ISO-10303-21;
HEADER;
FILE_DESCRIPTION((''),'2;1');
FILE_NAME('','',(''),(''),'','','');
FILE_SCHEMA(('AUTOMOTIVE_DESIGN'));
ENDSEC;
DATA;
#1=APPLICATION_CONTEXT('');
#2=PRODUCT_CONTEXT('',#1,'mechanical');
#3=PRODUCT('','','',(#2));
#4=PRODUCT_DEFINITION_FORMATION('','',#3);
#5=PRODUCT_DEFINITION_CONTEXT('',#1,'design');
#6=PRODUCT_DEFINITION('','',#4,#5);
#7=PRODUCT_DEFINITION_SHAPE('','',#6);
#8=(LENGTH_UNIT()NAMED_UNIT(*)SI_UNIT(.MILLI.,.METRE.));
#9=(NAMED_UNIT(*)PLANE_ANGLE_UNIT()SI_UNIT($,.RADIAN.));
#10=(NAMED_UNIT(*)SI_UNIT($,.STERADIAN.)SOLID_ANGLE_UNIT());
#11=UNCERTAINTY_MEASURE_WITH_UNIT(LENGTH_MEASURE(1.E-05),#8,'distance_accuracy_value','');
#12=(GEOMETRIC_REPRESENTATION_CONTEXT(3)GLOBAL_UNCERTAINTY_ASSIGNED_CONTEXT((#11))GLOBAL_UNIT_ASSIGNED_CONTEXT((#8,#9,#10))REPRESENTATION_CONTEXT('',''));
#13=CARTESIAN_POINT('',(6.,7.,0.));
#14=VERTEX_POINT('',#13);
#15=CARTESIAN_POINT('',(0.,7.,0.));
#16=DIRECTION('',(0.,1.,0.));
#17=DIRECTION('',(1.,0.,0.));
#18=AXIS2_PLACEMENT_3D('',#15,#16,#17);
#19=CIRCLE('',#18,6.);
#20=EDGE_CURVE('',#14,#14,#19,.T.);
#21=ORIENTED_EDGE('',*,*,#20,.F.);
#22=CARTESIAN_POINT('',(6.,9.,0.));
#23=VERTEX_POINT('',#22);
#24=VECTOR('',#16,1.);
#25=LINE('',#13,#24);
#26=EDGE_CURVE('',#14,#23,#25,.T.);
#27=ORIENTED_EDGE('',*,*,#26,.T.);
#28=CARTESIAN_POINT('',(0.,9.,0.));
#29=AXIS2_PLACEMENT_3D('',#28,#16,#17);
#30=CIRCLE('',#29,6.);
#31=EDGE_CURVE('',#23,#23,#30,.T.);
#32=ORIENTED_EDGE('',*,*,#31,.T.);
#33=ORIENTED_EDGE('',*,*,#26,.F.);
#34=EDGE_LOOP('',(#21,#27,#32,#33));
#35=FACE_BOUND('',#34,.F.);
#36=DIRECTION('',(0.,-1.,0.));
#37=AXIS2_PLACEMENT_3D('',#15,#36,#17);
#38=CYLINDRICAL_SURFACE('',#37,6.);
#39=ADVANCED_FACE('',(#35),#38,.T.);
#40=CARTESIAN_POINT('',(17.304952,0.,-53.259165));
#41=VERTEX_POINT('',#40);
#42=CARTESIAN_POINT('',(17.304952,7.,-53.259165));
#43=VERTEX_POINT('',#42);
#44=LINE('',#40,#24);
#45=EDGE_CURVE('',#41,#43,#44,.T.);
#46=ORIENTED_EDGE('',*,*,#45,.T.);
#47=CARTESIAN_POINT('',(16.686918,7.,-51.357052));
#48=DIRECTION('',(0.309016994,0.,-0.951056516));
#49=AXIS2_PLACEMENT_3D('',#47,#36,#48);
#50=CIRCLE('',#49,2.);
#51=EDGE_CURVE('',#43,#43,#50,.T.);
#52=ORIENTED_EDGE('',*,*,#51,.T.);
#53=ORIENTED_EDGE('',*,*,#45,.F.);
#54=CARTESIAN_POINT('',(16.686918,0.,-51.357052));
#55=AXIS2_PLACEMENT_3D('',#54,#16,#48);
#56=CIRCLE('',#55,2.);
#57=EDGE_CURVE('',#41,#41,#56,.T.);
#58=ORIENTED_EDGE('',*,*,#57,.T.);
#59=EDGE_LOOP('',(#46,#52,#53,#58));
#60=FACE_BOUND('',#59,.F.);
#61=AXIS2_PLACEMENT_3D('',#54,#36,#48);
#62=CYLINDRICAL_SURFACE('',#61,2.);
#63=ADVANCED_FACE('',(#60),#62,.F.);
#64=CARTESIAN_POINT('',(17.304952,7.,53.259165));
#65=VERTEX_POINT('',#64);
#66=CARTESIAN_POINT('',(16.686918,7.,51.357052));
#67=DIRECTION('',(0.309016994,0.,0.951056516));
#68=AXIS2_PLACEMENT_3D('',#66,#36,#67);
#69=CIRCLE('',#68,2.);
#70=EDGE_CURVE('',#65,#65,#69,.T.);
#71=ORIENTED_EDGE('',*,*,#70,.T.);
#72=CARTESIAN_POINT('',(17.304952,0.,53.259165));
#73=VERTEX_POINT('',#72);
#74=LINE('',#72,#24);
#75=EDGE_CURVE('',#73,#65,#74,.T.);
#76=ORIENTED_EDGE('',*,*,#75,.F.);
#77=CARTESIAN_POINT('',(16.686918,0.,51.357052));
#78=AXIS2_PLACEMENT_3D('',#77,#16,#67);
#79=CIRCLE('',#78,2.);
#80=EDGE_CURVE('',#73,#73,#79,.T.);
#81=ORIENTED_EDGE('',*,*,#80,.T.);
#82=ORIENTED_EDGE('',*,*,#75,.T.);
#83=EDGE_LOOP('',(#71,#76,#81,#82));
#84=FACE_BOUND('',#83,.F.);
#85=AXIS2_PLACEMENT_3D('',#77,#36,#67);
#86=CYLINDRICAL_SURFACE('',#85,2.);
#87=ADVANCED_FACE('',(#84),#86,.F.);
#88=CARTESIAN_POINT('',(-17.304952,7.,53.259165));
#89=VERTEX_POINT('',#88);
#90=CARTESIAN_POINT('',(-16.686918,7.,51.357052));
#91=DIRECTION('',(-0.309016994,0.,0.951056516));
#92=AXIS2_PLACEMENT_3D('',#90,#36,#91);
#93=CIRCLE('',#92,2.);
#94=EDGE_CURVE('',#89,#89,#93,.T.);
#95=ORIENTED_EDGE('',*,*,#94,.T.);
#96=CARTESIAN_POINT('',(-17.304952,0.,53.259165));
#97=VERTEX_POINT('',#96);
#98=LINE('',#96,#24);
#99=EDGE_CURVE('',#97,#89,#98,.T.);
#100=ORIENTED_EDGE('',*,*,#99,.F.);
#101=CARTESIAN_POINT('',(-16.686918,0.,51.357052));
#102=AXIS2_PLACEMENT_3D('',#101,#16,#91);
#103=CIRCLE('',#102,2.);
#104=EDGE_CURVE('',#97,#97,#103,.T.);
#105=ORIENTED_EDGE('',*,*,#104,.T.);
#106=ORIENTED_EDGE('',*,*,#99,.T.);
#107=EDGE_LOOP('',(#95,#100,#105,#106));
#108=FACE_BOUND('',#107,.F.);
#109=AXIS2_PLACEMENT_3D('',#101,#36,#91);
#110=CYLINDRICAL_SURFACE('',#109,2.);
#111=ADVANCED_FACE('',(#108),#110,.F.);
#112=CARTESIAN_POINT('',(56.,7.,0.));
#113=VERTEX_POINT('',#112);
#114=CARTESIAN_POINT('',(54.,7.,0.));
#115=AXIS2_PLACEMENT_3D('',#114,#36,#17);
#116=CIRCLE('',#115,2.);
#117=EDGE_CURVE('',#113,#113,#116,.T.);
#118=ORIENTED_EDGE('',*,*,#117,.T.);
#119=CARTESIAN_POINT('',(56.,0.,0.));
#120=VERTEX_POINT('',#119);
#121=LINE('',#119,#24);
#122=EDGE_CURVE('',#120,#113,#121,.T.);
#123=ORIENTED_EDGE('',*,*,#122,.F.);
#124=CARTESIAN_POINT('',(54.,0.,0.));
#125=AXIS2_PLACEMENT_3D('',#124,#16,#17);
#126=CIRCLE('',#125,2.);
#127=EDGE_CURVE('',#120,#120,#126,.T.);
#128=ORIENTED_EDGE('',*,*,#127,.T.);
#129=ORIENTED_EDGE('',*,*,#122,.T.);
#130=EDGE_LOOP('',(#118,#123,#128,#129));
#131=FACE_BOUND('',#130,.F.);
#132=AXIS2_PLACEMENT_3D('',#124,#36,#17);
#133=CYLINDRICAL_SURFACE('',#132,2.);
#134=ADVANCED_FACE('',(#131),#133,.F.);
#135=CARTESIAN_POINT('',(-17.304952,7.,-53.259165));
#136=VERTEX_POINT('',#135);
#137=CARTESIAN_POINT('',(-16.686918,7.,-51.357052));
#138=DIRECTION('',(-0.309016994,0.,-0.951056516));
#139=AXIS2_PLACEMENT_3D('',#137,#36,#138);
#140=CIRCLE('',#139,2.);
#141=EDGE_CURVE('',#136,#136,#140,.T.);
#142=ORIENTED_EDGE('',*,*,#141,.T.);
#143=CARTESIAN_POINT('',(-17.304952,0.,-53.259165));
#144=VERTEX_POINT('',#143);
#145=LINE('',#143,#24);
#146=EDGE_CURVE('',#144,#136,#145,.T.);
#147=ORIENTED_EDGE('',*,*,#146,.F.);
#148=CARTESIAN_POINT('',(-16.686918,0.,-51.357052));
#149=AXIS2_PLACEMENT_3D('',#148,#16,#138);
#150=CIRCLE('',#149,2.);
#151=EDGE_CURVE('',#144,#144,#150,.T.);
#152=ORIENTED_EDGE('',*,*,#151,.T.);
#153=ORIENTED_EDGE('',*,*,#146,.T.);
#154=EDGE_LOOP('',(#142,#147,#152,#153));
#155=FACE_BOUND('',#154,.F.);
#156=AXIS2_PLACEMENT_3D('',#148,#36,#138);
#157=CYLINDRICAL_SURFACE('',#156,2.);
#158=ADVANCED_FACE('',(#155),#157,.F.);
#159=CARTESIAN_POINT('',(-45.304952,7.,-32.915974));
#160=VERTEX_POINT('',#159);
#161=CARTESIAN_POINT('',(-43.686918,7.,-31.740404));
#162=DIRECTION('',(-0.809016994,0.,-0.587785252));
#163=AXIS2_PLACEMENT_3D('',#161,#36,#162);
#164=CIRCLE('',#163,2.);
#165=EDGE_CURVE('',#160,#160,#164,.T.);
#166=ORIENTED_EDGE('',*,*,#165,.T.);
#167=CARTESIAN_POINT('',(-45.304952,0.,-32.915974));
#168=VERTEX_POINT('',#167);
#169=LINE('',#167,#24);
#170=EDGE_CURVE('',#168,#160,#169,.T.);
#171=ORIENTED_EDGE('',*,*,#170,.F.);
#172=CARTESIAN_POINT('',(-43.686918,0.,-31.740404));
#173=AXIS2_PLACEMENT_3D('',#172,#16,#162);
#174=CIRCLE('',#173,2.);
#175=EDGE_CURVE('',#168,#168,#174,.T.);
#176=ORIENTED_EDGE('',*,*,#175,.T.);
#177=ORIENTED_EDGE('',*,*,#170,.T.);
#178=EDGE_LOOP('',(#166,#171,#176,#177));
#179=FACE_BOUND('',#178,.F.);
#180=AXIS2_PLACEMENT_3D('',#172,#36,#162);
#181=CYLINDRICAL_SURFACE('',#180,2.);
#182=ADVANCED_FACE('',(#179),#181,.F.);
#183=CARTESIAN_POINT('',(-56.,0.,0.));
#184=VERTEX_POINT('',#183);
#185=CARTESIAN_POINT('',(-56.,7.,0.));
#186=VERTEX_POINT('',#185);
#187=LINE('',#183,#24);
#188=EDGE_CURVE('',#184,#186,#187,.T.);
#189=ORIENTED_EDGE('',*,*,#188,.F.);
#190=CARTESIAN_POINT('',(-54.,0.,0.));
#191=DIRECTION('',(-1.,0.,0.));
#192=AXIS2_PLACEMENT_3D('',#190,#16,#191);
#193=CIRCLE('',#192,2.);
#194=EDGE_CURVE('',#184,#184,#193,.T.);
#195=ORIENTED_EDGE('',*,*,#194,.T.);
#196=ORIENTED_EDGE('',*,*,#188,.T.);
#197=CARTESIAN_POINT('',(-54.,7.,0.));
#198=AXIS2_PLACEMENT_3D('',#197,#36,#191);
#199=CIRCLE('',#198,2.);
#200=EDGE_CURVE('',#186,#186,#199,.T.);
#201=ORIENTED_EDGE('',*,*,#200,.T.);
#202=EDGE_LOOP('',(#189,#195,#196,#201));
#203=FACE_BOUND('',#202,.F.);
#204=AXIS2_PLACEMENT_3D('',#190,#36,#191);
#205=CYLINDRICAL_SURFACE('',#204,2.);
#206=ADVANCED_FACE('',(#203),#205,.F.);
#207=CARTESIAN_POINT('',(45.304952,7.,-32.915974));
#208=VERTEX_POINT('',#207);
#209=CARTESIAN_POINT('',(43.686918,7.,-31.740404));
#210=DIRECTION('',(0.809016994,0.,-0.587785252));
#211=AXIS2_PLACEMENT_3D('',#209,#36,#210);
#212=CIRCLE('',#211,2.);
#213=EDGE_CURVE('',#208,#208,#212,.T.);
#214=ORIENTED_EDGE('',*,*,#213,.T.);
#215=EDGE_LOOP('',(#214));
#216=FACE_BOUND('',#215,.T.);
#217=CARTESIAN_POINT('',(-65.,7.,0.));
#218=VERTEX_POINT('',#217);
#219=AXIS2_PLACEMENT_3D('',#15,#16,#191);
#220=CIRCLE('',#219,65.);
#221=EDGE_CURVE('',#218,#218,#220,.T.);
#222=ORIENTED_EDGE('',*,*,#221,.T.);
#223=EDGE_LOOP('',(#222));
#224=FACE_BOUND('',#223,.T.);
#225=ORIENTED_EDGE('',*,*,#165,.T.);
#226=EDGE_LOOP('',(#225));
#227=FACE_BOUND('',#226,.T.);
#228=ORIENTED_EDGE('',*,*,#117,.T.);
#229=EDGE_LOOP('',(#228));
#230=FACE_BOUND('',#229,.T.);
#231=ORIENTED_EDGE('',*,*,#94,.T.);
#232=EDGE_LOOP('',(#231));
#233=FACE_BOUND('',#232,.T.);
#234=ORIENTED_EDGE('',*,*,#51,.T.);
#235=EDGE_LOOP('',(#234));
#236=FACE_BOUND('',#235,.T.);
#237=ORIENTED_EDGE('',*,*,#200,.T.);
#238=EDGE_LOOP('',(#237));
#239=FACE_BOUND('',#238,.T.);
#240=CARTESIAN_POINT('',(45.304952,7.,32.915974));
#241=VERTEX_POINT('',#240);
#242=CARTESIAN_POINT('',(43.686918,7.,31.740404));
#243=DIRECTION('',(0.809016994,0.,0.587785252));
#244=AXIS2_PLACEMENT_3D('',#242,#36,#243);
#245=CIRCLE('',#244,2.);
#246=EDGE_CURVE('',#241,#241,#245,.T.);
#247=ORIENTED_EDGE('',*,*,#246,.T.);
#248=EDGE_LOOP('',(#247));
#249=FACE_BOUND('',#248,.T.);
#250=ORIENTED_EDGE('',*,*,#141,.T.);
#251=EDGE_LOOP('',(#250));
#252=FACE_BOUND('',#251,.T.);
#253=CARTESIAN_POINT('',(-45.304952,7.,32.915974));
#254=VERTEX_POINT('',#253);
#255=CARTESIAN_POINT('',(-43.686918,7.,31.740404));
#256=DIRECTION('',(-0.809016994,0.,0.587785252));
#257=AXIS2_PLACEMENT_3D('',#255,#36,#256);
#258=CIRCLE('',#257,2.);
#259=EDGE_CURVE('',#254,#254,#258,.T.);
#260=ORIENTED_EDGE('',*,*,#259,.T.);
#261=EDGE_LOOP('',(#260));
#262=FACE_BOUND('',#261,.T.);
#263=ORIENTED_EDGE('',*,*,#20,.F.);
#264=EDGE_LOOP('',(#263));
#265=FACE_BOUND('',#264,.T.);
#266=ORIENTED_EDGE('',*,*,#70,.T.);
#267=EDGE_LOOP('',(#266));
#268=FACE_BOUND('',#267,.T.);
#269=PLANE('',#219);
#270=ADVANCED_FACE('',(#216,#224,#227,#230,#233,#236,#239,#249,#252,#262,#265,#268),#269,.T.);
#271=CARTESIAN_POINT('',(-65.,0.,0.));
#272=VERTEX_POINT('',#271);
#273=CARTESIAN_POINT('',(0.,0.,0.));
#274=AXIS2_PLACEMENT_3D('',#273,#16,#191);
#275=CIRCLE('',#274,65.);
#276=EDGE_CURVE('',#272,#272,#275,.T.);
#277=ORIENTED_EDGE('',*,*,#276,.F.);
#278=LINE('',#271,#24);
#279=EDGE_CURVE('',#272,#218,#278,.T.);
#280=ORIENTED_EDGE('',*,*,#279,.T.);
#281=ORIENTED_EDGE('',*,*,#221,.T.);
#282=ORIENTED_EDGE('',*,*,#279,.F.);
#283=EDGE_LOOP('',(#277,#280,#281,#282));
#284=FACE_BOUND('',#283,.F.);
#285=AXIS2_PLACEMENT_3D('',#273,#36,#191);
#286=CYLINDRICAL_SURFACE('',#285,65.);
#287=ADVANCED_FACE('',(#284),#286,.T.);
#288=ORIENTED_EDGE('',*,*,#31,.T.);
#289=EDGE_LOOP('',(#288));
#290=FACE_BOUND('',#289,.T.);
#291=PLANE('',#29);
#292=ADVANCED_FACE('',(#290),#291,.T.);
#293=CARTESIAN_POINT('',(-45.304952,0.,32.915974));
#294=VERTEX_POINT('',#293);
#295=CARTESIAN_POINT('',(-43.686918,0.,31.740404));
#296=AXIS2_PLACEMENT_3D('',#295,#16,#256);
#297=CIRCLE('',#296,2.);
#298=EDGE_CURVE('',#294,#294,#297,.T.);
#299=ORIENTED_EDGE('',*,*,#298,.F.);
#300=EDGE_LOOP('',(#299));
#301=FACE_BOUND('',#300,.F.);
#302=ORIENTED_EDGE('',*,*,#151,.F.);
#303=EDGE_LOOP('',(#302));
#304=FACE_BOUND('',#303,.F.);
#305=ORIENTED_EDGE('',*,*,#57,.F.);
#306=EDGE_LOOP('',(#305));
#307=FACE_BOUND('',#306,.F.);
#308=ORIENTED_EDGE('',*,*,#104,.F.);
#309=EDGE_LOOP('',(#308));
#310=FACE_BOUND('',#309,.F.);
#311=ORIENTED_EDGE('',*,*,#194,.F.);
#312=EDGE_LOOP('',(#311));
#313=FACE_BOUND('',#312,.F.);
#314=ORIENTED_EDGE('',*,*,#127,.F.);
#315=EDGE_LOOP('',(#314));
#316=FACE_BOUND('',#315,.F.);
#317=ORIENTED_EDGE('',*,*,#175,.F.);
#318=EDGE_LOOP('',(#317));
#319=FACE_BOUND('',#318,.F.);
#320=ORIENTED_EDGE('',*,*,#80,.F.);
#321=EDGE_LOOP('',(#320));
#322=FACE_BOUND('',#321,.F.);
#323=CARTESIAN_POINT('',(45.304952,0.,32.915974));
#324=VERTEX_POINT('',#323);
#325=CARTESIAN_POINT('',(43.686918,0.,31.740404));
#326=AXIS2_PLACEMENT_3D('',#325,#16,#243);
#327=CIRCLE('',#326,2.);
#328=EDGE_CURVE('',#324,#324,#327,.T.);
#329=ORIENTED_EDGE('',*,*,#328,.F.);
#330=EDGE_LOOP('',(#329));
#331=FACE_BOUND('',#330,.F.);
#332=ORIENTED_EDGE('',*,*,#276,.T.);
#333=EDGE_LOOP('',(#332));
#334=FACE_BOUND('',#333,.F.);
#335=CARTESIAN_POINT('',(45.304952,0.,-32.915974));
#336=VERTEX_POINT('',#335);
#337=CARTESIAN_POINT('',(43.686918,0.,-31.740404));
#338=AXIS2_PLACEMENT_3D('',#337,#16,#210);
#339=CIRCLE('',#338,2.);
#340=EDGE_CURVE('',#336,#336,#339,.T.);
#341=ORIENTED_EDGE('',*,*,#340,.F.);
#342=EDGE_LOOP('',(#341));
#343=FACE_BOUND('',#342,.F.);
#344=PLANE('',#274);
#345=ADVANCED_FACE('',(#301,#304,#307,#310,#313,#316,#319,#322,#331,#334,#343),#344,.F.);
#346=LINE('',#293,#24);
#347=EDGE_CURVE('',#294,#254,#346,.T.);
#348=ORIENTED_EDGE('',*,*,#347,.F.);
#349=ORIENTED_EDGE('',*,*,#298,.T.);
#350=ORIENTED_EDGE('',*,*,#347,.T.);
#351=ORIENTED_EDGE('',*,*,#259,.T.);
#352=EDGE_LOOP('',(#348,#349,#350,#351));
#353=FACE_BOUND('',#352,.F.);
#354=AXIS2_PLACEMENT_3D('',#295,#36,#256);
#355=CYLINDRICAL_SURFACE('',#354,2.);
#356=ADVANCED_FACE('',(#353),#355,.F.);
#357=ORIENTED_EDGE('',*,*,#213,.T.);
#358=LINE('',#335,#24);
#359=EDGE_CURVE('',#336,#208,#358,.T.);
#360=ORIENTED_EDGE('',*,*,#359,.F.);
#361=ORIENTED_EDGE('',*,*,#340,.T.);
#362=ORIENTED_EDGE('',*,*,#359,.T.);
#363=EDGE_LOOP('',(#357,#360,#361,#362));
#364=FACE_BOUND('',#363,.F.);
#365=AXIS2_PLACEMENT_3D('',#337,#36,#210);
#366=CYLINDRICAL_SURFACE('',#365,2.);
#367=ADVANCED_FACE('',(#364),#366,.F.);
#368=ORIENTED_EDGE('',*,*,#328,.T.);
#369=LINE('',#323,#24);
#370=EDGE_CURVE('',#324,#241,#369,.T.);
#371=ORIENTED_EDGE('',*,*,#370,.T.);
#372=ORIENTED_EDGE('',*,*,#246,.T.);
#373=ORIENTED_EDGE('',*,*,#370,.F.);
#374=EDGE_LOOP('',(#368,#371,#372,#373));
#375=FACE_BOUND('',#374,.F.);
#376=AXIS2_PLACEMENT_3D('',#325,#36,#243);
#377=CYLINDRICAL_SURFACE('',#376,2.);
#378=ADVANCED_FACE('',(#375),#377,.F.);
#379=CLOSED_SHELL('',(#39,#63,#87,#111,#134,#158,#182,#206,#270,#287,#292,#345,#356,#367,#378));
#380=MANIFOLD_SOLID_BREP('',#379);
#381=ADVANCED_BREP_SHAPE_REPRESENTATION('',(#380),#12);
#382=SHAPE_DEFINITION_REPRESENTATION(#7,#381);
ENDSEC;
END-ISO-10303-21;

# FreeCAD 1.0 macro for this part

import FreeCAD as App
import Part
import Sketcher
from FreeCAD import Vector

doc = App.newDocument("Part")
body = doc.addObject("PartDesign::Body", "Body")

# Sketch on XZ plane
sketch1 = body.newObject("Sketcher::SketchObject", "Sketch")
sketch1.AttachmentSupport = (doc.getObject("XZ_Plane"), [""])
sketch1.MapMode = "FlatFace"
sketch1.addGeometry(Part.Circle(Vector(0, 0, 0), Vector(0, 0, 1), 65), False)
sketch1.addConstraint([
    Sketcher.Constraint("Coincident", 0, 3, -1, 1),
    Sketcher.Constraint("Diameter", 0, 130.0),
])
pad1 = body.newObject("PartDesign::Pad", "Pad")
pad1.Profile = sketch1
pad1.Length = 7
pad1.Reversed = True

# Sketch on XZ plane
sketch2 = body.newObject("Sketcher::SketchObject", "Sketch001")
sketch2.AttachmentSupport = (doc.getObject("XZ_Plane"), [""])
sketch2.MapMode = "FlatFace"
sketch2.AttachmentOffset = App.Placement(Vector(0, 0, -7), App.Rotation())
sketch2.addGeometry(Part.Circle(Vector(0, 0, 0), Vector(0, 0, 1), 6), False)
sketch2.addConstraint([
    Sketcher.Constraint("Coincident", 0, 3, -1, 1),
    Sketcher.Constraint("Diameter", 0, 12.0),
])
pad2 = body.newObject("PartDesign::Pad", "Pad001")
pad2.Profile = sketch2
pad2.Length = 2
pad2.Reversed = True

# Sketch on XZ plane
sketch3 = body.newObject("Sketcher::SketchObject", "Sketch002")
sketch3.AttachmentSupport = (doc.getObject("XZ_Plane"), [""])
sketch3.MapMode = "FlatFace"
sketch3.addGeometry(Part.Circle(Vector(54, 0, 0), Vector(0, 0, 1), 2), False)
sketch3.addConstraint([
    Sketcher.Constraint("PointOnObject", 0, 3, -1),
    Sketcher.Constraint("Diameter", 0, 4.0),
    Sketcher.Constraint("DistanceX", -1, 1, 0, 3, 54.0),
])
pocket1 = body.newObject("PartDesign::Pocket", "Pocket")
pocket1.Profile = sketch3
pocket1.Length = 10
doc.recompute()

polarpattern = body.newObject("PartDesign::PolarPattern", "PolarPattern")
polarpattern.Originals = [pocket1]
polarpattern.Axis = (doc.getObject("Y_Axis"), [""])
polarpattern.Angle = 360
polarpattern.Occurrences = 10
body.Tip = polarpattern

doc.recompute()
